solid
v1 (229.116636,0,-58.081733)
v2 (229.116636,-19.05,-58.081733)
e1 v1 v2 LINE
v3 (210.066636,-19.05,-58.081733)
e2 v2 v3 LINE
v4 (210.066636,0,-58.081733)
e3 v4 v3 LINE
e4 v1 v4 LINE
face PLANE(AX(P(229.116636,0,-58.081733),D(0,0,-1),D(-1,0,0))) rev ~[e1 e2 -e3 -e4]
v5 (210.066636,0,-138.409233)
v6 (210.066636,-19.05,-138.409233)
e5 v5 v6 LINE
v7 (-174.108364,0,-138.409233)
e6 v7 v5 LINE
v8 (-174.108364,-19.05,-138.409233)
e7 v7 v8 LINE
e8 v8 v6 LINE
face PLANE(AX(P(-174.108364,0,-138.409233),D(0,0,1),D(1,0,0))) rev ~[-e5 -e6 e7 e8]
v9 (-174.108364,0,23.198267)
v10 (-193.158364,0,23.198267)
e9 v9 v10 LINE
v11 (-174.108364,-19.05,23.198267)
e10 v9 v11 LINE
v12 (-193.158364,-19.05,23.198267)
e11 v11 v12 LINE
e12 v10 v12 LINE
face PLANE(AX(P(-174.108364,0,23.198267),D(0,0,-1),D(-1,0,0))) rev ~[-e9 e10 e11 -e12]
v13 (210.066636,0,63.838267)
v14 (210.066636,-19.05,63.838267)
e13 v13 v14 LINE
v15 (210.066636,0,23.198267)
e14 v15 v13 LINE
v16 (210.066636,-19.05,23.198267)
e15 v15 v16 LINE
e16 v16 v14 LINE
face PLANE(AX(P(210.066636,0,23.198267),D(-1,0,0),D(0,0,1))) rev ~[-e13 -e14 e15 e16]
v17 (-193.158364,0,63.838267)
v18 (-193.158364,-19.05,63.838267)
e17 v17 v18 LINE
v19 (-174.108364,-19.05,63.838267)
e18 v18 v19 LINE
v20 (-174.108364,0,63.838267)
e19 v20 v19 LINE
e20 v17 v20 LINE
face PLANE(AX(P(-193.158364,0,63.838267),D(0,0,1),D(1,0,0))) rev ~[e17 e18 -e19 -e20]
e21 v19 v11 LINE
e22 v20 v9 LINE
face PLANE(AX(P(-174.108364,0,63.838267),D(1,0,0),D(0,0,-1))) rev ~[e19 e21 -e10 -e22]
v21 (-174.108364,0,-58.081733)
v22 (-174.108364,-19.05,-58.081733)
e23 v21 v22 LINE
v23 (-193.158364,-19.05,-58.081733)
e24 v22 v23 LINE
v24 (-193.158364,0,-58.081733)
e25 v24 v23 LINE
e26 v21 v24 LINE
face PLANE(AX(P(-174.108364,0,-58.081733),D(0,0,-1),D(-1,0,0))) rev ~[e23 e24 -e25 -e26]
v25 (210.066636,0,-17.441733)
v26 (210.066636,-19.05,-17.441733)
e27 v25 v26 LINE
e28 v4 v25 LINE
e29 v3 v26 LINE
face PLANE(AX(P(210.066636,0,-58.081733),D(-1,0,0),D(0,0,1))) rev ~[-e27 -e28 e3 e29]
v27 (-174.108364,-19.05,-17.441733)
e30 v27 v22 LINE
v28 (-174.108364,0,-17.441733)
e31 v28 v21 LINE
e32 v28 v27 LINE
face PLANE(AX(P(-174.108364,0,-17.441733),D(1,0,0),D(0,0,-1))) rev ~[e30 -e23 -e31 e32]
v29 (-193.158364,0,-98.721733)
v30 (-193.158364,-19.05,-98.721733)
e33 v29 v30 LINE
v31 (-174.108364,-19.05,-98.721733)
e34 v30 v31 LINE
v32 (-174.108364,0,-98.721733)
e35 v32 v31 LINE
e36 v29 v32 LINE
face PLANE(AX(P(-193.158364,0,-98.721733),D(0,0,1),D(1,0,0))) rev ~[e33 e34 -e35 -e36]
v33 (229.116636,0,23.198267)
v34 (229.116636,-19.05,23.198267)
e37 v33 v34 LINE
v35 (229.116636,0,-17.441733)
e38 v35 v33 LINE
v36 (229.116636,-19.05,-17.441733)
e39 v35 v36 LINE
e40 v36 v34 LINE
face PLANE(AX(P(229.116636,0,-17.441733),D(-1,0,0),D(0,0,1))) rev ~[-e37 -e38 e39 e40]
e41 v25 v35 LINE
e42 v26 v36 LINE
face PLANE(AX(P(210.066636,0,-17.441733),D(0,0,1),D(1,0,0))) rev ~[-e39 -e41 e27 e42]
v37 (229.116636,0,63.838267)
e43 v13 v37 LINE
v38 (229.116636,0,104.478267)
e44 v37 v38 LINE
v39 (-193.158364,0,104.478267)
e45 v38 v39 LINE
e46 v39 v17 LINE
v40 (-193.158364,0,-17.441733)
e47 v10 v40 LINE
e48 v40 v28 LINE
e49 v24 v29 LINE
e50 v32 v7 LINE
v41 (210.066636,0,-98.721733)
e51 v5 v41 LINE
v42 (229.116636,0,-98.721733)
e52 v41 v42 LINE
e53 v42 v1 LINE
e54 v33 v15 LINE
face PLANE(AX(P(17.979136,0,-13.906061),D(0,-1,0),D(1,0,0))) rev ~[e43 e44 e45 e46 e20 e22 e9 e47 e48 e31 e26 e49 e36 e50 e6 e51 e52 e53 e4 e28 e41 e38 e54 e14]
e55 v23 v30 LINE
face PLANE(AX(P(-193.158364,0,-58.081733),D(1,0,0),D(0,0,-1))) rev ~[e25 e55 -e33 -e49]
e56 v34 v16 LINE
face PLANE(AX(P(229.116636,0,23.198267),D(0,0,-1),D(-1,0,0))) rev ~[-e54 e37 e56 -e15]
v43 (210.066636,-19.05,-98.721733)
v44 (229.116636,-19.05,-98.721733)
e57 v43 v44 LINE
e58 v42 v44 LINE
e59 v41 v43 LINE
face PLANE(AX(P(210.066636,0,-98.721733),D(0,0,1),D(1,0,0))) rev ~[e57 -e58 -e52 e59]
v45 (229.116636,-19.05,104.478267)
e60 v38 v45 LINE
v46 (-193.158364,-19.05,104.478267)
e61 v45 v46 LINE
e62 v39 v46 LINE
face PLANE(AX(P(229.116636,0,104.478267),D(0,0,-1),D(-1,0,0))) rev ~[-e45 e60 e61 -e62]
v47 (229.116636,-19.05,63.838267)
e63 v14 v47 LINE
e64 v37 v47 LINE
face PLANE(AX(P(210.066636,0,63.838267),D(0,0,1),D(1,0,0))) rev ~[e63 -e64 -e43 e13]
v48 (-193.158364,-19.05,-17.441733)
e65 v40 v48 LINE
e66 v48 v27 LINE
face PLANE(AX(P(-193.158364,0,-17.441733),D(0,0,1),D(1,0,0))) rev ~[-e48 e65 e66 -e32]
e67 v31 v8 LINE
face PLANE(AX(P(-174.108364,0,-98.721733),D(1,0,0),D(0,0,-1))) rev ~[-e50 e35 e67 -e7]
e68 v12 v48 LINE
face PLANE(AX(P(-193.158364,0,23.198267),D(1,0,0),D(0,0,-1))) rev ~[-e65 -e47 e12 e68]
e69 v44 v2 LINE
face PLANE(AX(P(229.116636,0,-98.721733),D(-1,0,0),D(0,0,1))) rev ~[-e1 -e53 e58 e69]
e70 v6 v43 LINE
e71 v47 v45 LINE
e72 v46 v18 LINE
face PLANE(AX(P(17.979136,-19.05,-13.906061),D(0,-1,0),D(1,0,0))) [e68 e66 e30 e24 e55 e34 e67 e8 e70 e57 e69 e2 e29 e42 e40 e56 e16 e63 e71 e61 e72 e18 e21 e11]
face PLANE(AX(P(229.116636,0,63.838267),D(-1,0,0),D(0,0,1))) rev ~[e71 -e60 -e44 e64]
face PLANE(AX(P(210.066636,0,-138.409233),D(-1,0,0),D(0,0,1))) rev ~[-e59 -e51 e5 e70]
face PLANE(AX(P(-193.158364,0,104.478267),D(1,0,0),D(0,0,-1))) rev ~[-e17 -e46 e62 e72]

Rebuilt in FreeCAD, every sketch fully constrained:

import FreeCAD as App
import Part
import Sketcher
from FreeCAD import Vector
Q = App.Units.Quantity


def add_polygon(sketch, points):
    """Adds a closed chain of lines whose ends are joined by coincident constraints."""
    first, n = sketch.GeometryCount, len(points)
    for a, b in zip(points, points[1:] + points[:1]):
        sketch.addGeometry(Part.LineSegment(App.Vector(*a, 0), App.Vector(*b, 0)), False)
    for i in range(n):
        sketch.addConstraint(Sketcher.Constraint("Coincident", first + i, 2, first + (i + 1) % n, 1))

doc = App.newDocument("Part")
params = doc.addObject("Spreadsheet::Sheet", "Params")
for row, (alias, value) in enumerate([
    ("sketch1_height", "1.6 in"),
    ("sketch1_width", "0.75 in"),
    ("sketch1_width2", "15.125 in"),
    ("sketch1_height2", "1.5625 in"),
    ("pad1_length", "0.75 in"),
], start=1):
    params.set(f"A{row}", alias)
    params.set(f"B{row}", "=" + value)
    params.setAlias(f"B{row}", alias)

body = doc.addObject("PartDesign::Body", "Body")

sketch1 = body.newObject("Sketcher::SketchObject", "Sketch")
sketch1.AttachmentSupport = (doc.getObject("XZ_Plane"), [""])
sketch1.MapMode = "FlatFace"
add_polygon(sketch1, [(-193.158364, 104.478267), (-193.158364, 63.838267), (-174.108364, 63.838267), (-174.108364, 23.198267), (-193.158364, 23.198267), (-193.158364, -17.441733), (-174.108364, -17.441733), (-174.108364, -58.081733), (-193.158364, -58.081733), (-193.158364, -98.721733), (-174.108364, -98.721733), (-174.108364, -138.409233), (210.066636, -138.409233), (210.066636, -98.721733), (229.116636, -98.721733), (229.116636, -58.081733), (210.066636, -58.081733), (210.066636, -17.441733), (229.116636, -17.441733), (229.116636, 23.198267), (210.066636, 23.198267), (210.066636, 63.838267), (229.116636, 63.838267), (229.116636, 104.478267)])
sketch1.addConstraint([
    Sketcher.Constraint("Vertical", 0),
    Sketcher.Constraint("Horizontal", 1),
    Sketcher.Constraint("Vertical", 2),
    Sketcher.Constraint("Horizontal", 3),
    Sketcher.Constraint("Vertical", 4),
    Sketcher.Constraint("Horizontal", 5),
    Sketcher.Constraint("Vertical", 6),
    Sketcher.Constraint("Horizontal", 7),
    Sketcher.Constraint("Vertical", 8),
    Sketcher.Constraint("Horizontal", 9),
    Sketcher.Constraint("Vertical", 10),
    Sketcher.Constraint("Horizontal", 11),
    Sketcher.Constraint("Vertical", 12),
    Sketcher.Constraint("Horizontal", 13),
    Sketcher.Constraint("Vertical", 14),
    Sketcher.Constraint("Horizontal", 15),
    Sketcher.Constraint("Vertical", 16),
    Sketcher.Constraint("Horizontal", 17),
    Sketcher.Constraint("Vertical", 18),
    Sketcher.Constraint("Horizontal", 19),
    Sketcher.Constraint("Vertical", 20),
    Sketcher.Constraint("Horizontal", 21),
    Sketcher.Constraint("Vertical", 22),
    Sketcher.Constraint("Horizontal", 23),
    Sketcher.Constraint("Horizontal", 9, 2, 12, 2),
    Sketcher.Constraint("Horizontal", 7, 2, 14, 2),
    Sketcher.Constraint("Horizontal", 5, 2, 16, 2),
    Sketcher.Constraint("Horizontal", 3, 2, 18, 2),
    Sketcher.Constraint("Horizontal", 1, 2, 20, 2),
    Sketcher.Constraint("Vertical", 0, 2, 3, 2),
    Sketcher.Constraint("Vertical", 2, 2, 5, 2),
    Sketcher.Constraint("Vertical", 4, 2, 7, 2),
    Sketcher.Constraint("Vertical", 6, 2, 9, 2),
    Sketcher.Constraint("Vertical", 12, 2, 15, 2),
    Sketcher.Constraint("Vertical", 14, 2, 17, 2),
    Sketcher.Constraint("Vertical", 16, 2, 19, 2),
    Sketcher.Constraint("Vertical", 18, 2, 21, 2),
    Sketcher.Constraint("Equal", 9, 13),
    Sketcher.Constraint("Equal", 0, 2),
    Sketcher.Constraint("Equal", 2, 4),
    Sketcher.Constraint("Equal", 4, 6),
    Sketcher.Constraint("Equal", 6, 8),
    Sketcher.Constraint("DistanceY", 0, 2, 0, 1, Q("1.6 in")),
    Sketcher.Constraint("DistanceX", 1, 1, 1, 2, Q("0.75 in")),
    Sketcher.Constraint("DistanceX", 11, 1, 11, 2, Q("15.125 in")),
    Sketcher.Constraint("DistanceY", 10, 2, 10, 1, Q("1.5625 in")),
    Sketcher.Constraint("DistanceX", 0, 2, -1, 1, 193.158364),
    Sketcher.Constraint("DistanceY", -1, 1, 0, 2, 63.838267),
])
sketch1.setExpression("Constraints[66]", "Params.sketch1_height")
sketch1.setExpression("Constraints[67]", "Params.sketch1_width")
sketch1.setExpression("Constraints[68]", "Params.sketch1_width2")
sketch1.setExpression("Constraints[69]", "Params.sketch1_height2")
pad1 = body.newObject("PartDesign::Pad", "Pad")
pad1.Profile = sketch1
pad1.setExpression("Length", "Params.pad1_length")

doc.recompute()
